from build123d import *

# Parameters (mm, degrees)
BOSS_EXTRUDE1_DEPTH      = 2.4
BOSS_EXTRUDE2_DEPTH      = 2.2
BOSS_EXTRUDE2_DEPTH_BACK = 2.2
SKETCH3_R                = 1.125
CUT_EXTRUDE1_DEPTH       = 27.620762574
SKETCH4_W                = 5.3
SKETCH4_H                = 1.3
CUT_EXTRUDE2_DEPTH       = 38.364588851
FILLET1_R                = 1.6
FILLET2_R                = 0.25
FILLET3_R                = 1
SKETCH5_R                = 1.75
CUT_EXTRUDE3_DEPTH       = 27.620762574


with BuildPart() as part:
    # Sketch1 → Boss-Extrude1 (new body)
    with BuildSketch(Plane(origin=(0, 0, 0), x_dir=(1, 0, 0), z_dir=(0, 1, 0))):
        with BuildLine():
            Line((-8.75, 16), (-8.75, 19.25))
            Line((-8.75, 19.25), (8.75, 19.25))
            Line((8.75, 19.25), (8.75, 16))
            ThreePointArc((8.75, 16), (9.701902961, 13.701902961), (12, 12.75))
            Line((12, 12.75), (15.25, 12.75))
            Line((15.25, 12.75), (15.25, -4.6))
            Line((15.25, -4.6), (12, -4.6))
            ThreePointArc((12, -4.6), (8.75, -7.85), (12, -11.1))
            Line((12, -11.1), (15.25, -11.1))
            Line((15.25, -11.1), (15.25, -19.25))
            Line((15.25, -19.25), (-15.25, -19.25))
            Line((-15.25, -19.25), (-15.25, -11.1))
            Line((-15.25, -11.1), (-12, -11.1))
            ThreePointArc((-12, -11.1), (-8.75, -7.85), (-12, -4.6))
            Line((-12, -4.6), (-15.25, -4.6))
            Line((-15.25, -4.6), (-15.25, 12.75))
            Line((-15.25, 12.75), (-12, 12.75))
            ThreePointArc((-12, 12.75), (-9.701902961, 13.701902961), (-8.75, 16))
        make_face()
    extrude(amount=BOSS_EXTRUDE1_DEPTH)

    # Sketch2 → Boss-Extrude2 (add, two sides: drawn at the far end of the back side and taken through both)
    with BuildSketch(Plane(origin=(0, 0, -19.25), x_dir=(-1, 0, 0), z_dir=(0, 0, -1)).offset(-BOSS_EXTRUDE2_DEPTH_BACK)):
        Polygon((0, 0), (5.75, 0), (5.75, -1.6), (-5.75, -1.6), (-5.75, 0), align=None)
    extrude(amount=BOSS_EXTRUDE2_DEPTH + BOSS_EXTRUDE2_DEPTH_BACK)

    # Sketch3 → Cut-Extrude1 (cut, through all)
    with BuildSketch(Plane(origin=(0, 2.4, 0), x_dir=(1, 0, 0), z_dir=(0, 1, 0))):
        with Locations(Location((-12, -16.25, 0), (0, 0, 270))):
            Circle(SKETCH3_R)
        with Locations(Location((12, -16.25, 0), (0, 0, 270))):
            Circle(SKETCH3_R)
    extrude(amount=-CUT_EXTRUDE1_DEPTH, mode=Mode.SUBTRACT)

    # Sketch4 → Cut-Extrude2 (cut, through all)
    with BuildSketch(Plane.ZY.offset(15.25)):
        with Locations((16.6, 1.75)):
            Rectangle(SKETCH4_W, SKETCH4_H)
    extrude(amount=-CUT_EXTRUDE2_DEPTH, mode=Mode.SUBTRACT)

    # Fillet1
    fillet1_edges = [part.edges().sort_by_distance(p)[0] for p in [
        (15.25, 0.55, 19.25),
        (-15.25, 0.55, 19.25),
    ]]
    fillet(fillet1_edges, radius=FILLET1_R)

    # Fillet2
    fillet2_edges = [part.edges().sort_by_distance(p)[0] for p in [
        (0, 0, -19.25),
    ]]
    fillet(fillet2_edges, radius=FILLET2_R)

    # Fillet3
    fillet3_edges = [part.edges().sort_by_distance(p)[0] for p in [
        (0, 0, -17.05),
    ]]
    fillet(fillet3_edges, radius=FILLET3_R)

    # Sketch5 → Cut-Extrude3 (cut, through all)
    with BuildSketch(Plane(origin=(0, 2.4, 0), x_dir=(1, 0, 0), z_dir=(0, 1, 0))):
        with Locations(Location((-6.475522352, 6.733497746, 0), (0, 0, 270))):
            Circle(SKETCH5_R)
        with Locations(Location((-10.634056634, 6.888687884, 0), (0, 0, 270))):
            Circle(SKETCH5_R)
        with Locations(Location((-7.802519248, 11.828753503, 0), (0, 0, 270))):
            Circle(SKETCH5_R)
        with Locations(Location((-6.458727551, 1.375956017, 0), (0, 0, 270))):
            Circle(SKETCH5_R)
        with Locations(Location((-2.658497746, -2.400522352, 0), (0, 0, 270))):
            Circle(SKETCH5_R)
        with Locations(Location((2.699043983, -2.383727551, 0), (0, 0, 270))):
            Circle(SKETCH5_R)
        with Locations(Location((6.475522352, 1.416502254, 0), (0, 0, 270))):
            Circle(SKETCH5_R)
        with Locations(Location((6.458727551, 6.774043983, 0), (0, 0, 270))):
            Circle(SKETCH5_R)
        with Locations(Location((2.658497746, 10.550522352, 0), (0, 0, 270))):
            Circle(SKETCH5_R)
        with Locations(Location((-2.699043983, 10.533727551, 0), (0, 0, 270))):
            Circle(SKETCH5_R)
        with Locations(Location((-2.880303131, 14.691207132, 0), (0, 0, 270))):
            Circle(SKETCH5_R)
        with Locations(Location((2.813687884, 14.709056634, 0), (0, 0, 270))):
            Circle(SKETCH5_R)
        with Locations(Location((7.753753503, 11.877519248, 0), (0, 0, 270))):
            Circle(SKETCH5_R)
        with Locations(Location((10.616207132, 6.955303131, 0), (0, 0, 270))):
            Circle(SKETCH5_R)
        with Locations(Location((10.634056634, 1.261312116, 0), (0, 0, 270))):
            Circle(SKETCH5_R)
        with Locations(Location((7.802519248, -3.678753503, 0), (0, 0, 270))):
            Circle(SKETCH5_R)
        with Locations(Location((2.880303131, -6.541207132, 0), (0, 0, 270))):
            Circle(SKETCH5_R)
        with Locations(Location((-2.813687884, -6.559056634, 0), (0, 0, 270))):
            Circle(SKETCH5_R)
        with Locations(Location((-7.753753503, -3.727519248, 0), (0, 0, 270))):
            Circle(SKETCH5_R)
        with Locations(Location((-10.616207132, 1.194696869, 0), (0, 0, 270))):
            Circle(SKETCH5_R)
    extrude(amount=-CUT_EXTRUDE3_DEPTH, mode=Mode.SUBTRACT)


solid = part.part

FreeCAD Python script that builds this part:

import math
import FreeCAD as App
import Part
import Sketcher
from FreeCAD import Vector


def edges_at(feature, points):
    """Names of the edges that pass closest to the given points."""
    edges = feature.Shape.Edges
    near = lambda p: min(range(len(edges)), key=lambda i: edges[i].distToShape(Part.Vertex(*p))[0])
    return sorted({f"Edge{near(p) + 1}" for p in points})

doc = App.newDocument("Part")
body = doc.addObject("PartDesign::Body", "Body")

sketch1 = body.newObject("Sketcher::SketchObject", "Sketch")
sketch1.AttachmentSupport = (doc.getObject("XZ_Plane"), [""])
sketch1.MapMode = "FlatFace"
sketch1.addGeometry(Part.LineSegment(Vector(-8.8, -19.2, 0), Vector(-8.8, -16, 0)), False)
sketch1.addGeometry(Part.ArcOfCircle(Part.Circle(Vector(-12, -16, 0), Vector(0, 0, 1), 3.2), math.radians(0), math.radians(90)), False)
sketch1.addGeometry(Part.LineSegment(Vector(-12, -12.8, 0), Vector(-15.2, -12.8, 0)), False)
sketch1.addGeometry(Part.LineSegment(Vector(-15.2, -12.8, 0), Vector(-15.2, 4.6, 0)), False)
sketch1.addGeometry(Part.LineSegment(Vector(-15.2, 4.6, 0), Vector(-12, 4.6, 0)), False)
sketch1.addGeometry(Part.ArcOfCircle(Part.Circle(Vector(-12, 7.8, 0), Vector(0, 0, 1), 3.2), math.radians(-90), math.radians(90)), False)
sketch1.addGeometry(Part.LineSegment(Vector(-12, 11.1, 0), Vector(-15.2, 11.1, 0)), False)
sketch1.addGeometry(Part.LineSegment(Vector(-15.2, 11.1, 0), Vector(-15.2, 19.2, 0)), False)
sketch1.addGeometry(Part.LineSegment(Vector(-15.2, 19.2, 0), Vector(15.2, 19.2, 0)), False)
sketch1.addGeometry(Part.LineSegment(Vector(15.2, 19.2, 0), Vector(15.2, 11.1, 0)), False)
sketch1.addGeometry(Part.LineSegment(Vector(15.2, 11.1, 0), Vector(12, 11.1, 0)), False)
sketch1.addGeometry(Part.ArcOfCircle(Part.Circle(Vector(12, 7.8, 0), Vector(0, 0, 1), 3.2), math.radians(90), math.radians(270)), False)
sketch1.addGeometry(Part.LineSegment(Vector(12, 4.6, 0), Vector(15.2, 4.6, 0)), False)
sketch1.addGeometry(Part.LineSegment(Vector(15.2, 4.6, 0), Vector(15.2, -12.8, 0)), False)
sketch1.addGeometry(Part.LineSegment(Vector(15.2, -12.8, 0), Vector(12, -12.8, 0)), False)
sketch1.addGeometry(Part.ArcOfCircle(Part.Circle(Vector(12, -16, 0), Vector(0, 0, 1), 3.2), math.radians(90), math.radians(180)), False)
sketch1.addGeometry(Part.LineSegment(Vector(8.8, -16, 0), Vector(8.8, -19.2, 0)), False)
sketch1.addGeometry(Part.LineSegment(Vector(8.8, -19.2, 0), Vector(-8.8, -19.2, 0)), False)
sketch1.addConstraint(Sketcher.Constraint("Tangent", 0, 2, 1, 1))
sketch1.addConstraint(Sketcher.Constraint("Tangent", 1, 2, 2, 1))
sketch1.addConstraint(Sketcher.Constraint("Coincident", 2, 2, 3, 1))
sketch1.addConstraint(Sketcher.Constraint("Coincident", 3, 2, 4, 1))
sketch1.addConstraint(Sketcher.Constraint("Tangent", 4, 2, 5, 1))
sketch1.addConstraint(Sketcher.Constraint("Tangent", 5, 2, 6, 1))
sketch1.addConstraint(Sketcher.Constraint("Coincident", 6, 2, 7, 1))
sketch1.addConstraint(Sketcher.Constraint("Coincident", 7, 2, 8, 1))
sketch1.addConstraint(Sketcher.Constraint("Coincident", 8, 2, 9, 1))
sketch1.addConstraint(Sketcher.Constraint("Coincident", 9, 2, 10, 1))
sketch1.addConstraint(Sketcher.Constraint("Tangent", 10, 2, 11, 1))
sketch1.addConstraint(Sketcher.Constraint("Tangent", 11, 2, 12, 1))
sketch1.addConstraint(Sketcher.Constraint("Coincident", 12, 2, 13, 1))
sketch1.addConstraint(Sketcher.Constraint("Coincident", 13, 2, 14, 1))
sketch1.addConstraint(Sketcher.Constraint("Tangent", 14, 2, 15, 1))
sketch1.addConstraint(Sketcher.Constraint("Tangent", 15, 2, 16, 1))
sketch1.addConstraint(Sketcher.Constraint("Coincident", 16, 2, 17, 1))
sketch1.addConstraint(Sketcher.Constraint("Coincident", 17, 2, 0, 1))
sketch1.addConstraint(Sketcher.Constraint("Vertical", 0))
sketch1.addConstraint(Sketcher.Constraint("Horizontal", 2))
sketch1.addConstraint(Sketcher.Constraint("Vertical", 3))
sketch1.addConstraint(Sketcher.Constraint("Horizontal", 4))
sketch1.addConstraint(Sketcher.Constraint("Horizontal", 6))
sketch1.addConstraint(Sketcher.Constraint("Vertical", 7))
sketch1.addConstraint(Sketcher.Constraint("Horizontal", 8))
sketch1.addConstraint(Sketcher.Constraint("Vertical", 9))
sketch1.addConstraint(Sketcher.Constraint("Horizontal", 10))
sketch1.addConstraint(Sketcher.Constraint("Horizontal", 12))
sketch1.addConstraint(Sketcher.Constraint("Vertical", 13))
sketch1.addConstraint(Sketcher.Constraint("Horizontal", 14))
sketch1.addConstraint(Sketcher.Constraint("Vertical", 16))
sketch1.addConstraint(Sketcher.Constraint("Horizontal", 17))
sketch1.addConstraint(Sketcher.Constraint("Equal", 1, 5))
sketch1.addConstraint(Sketcher.Constraint("Equal", 5, 11))
sketch1.addConstraint(Sketcher.Constraint("Equal", 11, 15))
sketch1.addConstraint(Sketcher.Constraint("Symmetric", 5, 3, 11, 3, -2))
sketch1.addConstraint(Sketcher.Constraint("Symmetric", 1, 3, 15, 3, -2))
sketch1.addConstraint(Sketcher.Constraint("Vertical", 1, 3, 5, 3))
sketch1.addConstraint(Sketcher.Constraint("Vertical", 3, 2, 6, 2))
sketch1.addConstraint(Sketcher.Constraint("Vertical", 9, 2, 12, 2))
sketch1.addConstraint(Sketcher.Constraint("Equal", 6, 10))
sketch1.addConstraint(Sketcher.Constraint("Equal", 14, 0))
sketch1.addConstraint(Sketcher.Constraint("Radius", 1, 3.25))
sketch1.addConstraint(Sketcher.Constraint("DistanceX", 8, 1, 8, 2, 30.5))
sketch1.addConstraint(Sketcher.Constraint("DistanceX", 17, 2, 17, 1, 17.5))
sketch1.addConstraint(Sketcher.Constraint("DistanceY", 1, 3, -1, 1, 16.0))
sketch1.addConstraint(Sketcher.Constraint("DistanceY", 3, 1, 3, 2, 17.35))
sketch1.addConstraint(Sketcher.Constraint("DistanceY", 7, 1, 7, 2, 8.15))
pad1 = body.newObject("PartDesign::Pad", "Pad")
pad1.Profile = sketch1
pad1.Length = 2.4
pad1.Reversed = True

sketch2 = body.newObject("Sketcher::SketchObject", "Sketch001")
sketch2.AttachmentSupport = (doc.getObject("XY_Plane"), [""])
sketch2.MapMode = "FlatFace"
sketch2.AttachmentOffset = App.Placement(Vector(0, 0, -19.25), App.Rotation())
sketch2.addGeometry(Part.LineSegment(Vector(-5.8, 0, 0), Vector(5.8, 0, 0)), False)
sketch2.addGeometry(Part.LineSegment(Vector(5.8, 0, 0), Vector(5.8, -1.6, 0)), False)
sketch2.addGeometry(Part.LineSegment(Vector(5.8, -1.6, 0), Vector(-5.8, -1.6, 0)), False)
sketch2.addGeometry(Part.LineSegment(Vector(-5.8, -1.6, 0), Vector(-5.8, 0, 0)), False)
sketch2.addConstraint(Sketcher.Constraint("Coincident", 0, 2, 1, 1))
sketch2.addConstraint(Sketcher.Constraint("Coincident", 1, 2, 2, 1))
sketch2.addConstraint(Sketcher.Constraint("Coincident", 2, 2, 3, 1))
sketch2.addConstraint(Sketcher.Constraint("Coincident", 3, 2, 0, 1))
sketch2.addConstraint(Sketcher.Constraint("Horizontal", 0))
sketch2.addConstraint(Sketcher.Constraint("Vertical", 1))
sketch2.addConstraint(Sketcher.Constraint("Horizontal", 2))
sketch2.addConstraint(Sketcher.Constraint("Vertical", 3))
sketch2.addConstraint(Sketcher.Constraint("Symmetric", 0, 2, 3, 2, -1, 1))
sketch2.addConstraint(Sketcher.Constraint("DistanceX", 0, 1, 0, 2, 11.5))
sketch2.addConstraint(Sketcher.Constraint("DistanceY", 1, 2, 1, 1, 1.6))
pad2 = body.newObject("PartDesign::Pad", "Pad001")
pad2.Profile = sketch2
pad2.Type = "TwoLengths"
pad2.Length = 2.2
pad2.Length2 = 2.2
pad2.Reversed = True

sketch3 = body.newObject("Sketcher::SketchObject", "Sketch002")
sketch3.AttachmentSupport = (doc.getObject("XZ_Plane"), [""])
sketch3.MapMode = "FlatFace"
sketch3.AttachmentOffset = App.Placement(Vector(0, 0, -2.4), App.Rotation())
sketch3.addGeometry(Part.Circle(Vector(-12, 16.2, 0), Vector(0, 0, 1), 1.1), False)
sketch3.addGeometry(Part.Circle(Vector(12, 16.2, 0), Vector(0, 0, 1), 1.1), False)
sketch3.addConstraint(Sketcher.Constraint("Equal", 0, 1))
sketch3.addConstraint(Sketcher.Constraint("Symmetric", 0, 3, 1, 3, -2))
sketch3.addConstraint(Sketcher.Constraint("Diameter", 0, 2.25))
sketch3.addConstraint(Sketcher.Constraint("DistanceX", 0, 3, -1, 1, 12.0))
sketch3.addConstraint(Sketcher.Constraint("DistanceY", -1, 1, 0, 3, 16.25))
pocket1 = body.newObject("PartDesign::Pocket", "Pocket")
pocket1.Profile = sketch3
pocket1.Type = "ThroughAll"
pocket1.Reversed = True

sketch4 = body.newObject("Sketcher::SketchObject", "Sketch003")
sketch4.AttachmentSupport = (doc.getObject("YZ_Plane"), [""])
sketch4.MapMode = "FlatFace"
sketch4.AttachmentOffset = App.Placement(Vector(0, 0, -15.25), App.Rotation())
sketch4.addGeometry(Part.LineSegment(Vector(2.4, 13.9, 0), Vector(1.1, 13.9, 0)), False)
sketch4.addGeometry(Part.LineSegment(Vector(1.1, 13.9, 0), Vector(1.1, 19.2, 0)), False)
sketch4.addGeometry(Part.LineSegment(Vector(1.1, 19.2, 0), Vector(2.4, 19.2, 0)), False)
sketch4.addGeometry(Part.LineSegment(Vector(2.4, 19.2, 0), Vector(2.4, 13.9, 0)), False)
sketch4.addConstraint(Sketcher.Constraint("Coincident", 0, 2, 1, 1))
sketch4.addConstraint(Sketcher.Constraint("Coincident", 1, 2, 2, 1))
sketch4.addConstraint(Sketcher.Constraint("Coincident", 2, 2, 3, 1))
sketch4.addConstraint(Sketcher.Constraint("Coincident", 3, 2, 0, 1))
sketch4.addConstraint(Sketcher.Constraint("Horizontal", 0))
sketch4.addConstraint(Sketcher.Constraint("Vertical", 1))
sketch4.addConstraint(Sketcher.Constraint("Horizontal", 2))
sketch4.addConstraint(Sketcher.Constraint("Vertical", 3))
sketch4.addConstraint(Sketcher.Constraint("DistanceX", 0, 2, 0, 1, 1.3))
sketch4.addConstraint(Sketcher.Constraint("DistanceY", 1, 1, 1, 2, 5.3))
sketch4.addConstraint(Sketcher.Constraint("DistanceX", -1, 1, 0, 2, 1.1))
sketch4.addConstraint(Sketcher.Constraint("DistanceY", -1, 1, 0, 2, 13.95))
pocket2 = body.newObject("PartDesign::Pocket", "Pocket001")
pocket2.Profile = sketch4
pocket2.Type = "ThroughAll"
pocket2.Reversed = True
doc.recompute()

fillet = body.newObject("PartDesign::Fillet", "Fillet")
fillet.Base = (pocket2, edges_at(pocket2, [(15.25, 0.55, 19.25), (-15.25, 0.55, 19.25)]))
fillet.Radius = 1.6
doc.recompute()

fillet2 = body.newObject("PartDesign::Fillet", "Fillet001")
fillet2.Base = (fillet, edges_at(fillet, [(0, 0, -19.25)]))
fillet2.Radius = 0.25
doc.recompute()

fillet3 = body.newObject("PartDesign::Fillet", "Fillet002")
fillet3.Base = (fillet2, edges_at(fillet2, [(0, 0, -17.05)]))
fillet3.Radius = 1

sketch5 = body.newObject("Sketcher::SketchObject", "Sketch004")
sketch5.AttachmentSupport = (doc.getObject("XZ_Plane"), [""])
sketch5.MapMode = "FlatFace"
sketch5.AttachmentOffset = App.Placement(Vector(0, 0, -2.4), App.Rotation())
sketch5.addGeometry(Part.Circle(Vector(-6.5, -6.7, 0), Vector(0, 0, 1), 1.8), False)
sketch5.addGeometry(Part.Circle(Vector(-10.6, -6.9, 0), Vector(0, 0, 1), 1.8), False)
sketch5.addGeometry(Part.Circle(Vector(-7.8, -11.8, 0), Vector(0, 0, 1), 1.8), False)
sketch5.addGeometry(Part.Circle(Vector(-6.5, -1.4, 0), Vector(0, 0, 1), 1.8), False)
sketch5.addGeometry(Part.Circle(Vector(-2.7, 2.4, 0), Vector(0, 0, 1), 1.8), False)
sketch5.addGeometry(Part.Circle(Vector(2.7, 2.4, 0), Vector(0, 0, 1), 1.8), False)
sketch5.addGeometry(Part.Circle(Vector(6.5, -1.4, 0), Vector(0, 0, 1), 1.8), False)
sketch5.addGeometry(Part.Circle(Vector(6.5, -6.8, 0), Vector(0, 0, 1), 1.8), False)
sketch5.addGeometry(Part.Circle(Vector(2.7, -10.6, 0), Vector(0, 0, 1), 1.8), False)
sketch5.addGeometry(Part.Circle(Vector(-2.7, -10.5, 0), Vector(0, 0, 1), 1.8), False)
sketch5.addGeometry(Part.Circle(Vector(-2.9, -14.7, 0), Vector(0, 0, 1), 1.8), False)
sketch5.addGeometry(Part.Circle(Vector(2.8, -14.7, 0), Vector(0, 0, 1), 1.8), False)
sketch5.addGeometry(Part.Circle(Vector(7.8, -11.9, 0), Vector(0, 0, 1), 1.8), False)
sketch5.addGeometry(Part.Circle(Vector(10.6, -7, 0), Vector(0, 0, 1), 1.8), False)
sketch5.addGeometry(Part.Circle(Vector(10.6, -1.3, 0), Vector(0, 0, 1), 1.8), False)
sketch5.addGeometry(Part.Circle(Vector(7.8, 3.7, 0), Vector(0, 0, 1), 1.8), False)
sketch5.addGeometry(Part.Circle(Vector(2.9, 6.5, 0), Vector(0, 0, 1), 1.8), False)
sketch5.addGeometry(Part.Circle(Vector(-2.8, 6.6, 0), Vector(0, 0, 1), 1.8), False)
sketch5.addGeometry(Part.Circle(Vector(-7.8, 3.7, 0), Vector(0, 0, 1), 1.8), False)
sketch5.addGeometry(Part.Circle(Vector(-10.6, -1.2, 0), Vector(0, 0, 1), 1.8), False)
sketch5.addConstraint(Sketcher.Constraint("Equal", 0, 1))
sketch5.addConstraint(Sketcher.Constraint("Equal", 1, 2))
sketch5.addConstraint(Sketcher.Constraint("Equal", 2, 3))
sketch5.addConstraint(Sketcher.Constraint("Equal", 3, 4))
sketch5.addConstraint(Sketcher.Constraint("Equal", 4, 5))
sketch5.addConstraint(Sketcher.Constraint("Equal", 5, 6))
sketch5.addConstraint(Sketcher.Constraint("Equal", 6, 7))
sketch5.addConstraint(Sketcher.Constraint("Equal", 7, 8))
sketch5.addConstraint(Sketcher.Constraint("Equal", 8, 9))
sketch5.addConstraint(Sketcher.Constraint("Equal", 9, 10))
sketch5.addConstraint(Sketcher.Constraint("Equal", 10, 11))
sketch5.addConstraint(Sketcher.Constraint("Equal", 11, 12))
sketch5.addConstraint(Sketcher.Constraint("Equal", 12, 13))
sketch5.addConstraint(Sketcher.Constraint("Equal", 13, 14))
sketch5.addConstraint(Sketcher.Constraint("Equal", 14, 15))
sketch5.addConstraint(Sketcher.Constraint("Equal", 15, 16))
sketch5.addConstraint(Sketcher.Constraint("Equal", 16, 17))
sketch5.addConstraint(Sketcher.Constraint("Equal", 17, 18))
sketch5.addConstraint(Sketcher.Constraint("Equal", 18, 19))
sketch5.addConstraint(Sketcher.Constraint("Diameter", 0, 3.5))
sketch5.addConstraint(Sketcher.Constraint("DistanceX", 1, 3, 5, 3, 13.333101))
sketch5.addConstraint(Sketcher.Constraint("DistanceX", 10, 3, 8, 3, 5.538801))
sketch5.addConstraint(Sketcher.Constraint("DistanceY", 13, 3, 6, 3, 5.538801))
sketch5.addConstraint(Sketcher.Constraint("DistanceX", 4, 3, 16, 3, 5.538801))
sketch5.addConstraint(Sketcher.Constraint("DistanceY", 0, 3, 19, 3, 5.538801))
sketch5.addConstraint(Sketcher.Constraint("DistanceX", 2, 3, -1, 1, 7.802519))
sketch5.addConstraint(Sketcher.Constraint("DistanceY", 12, 3, -1, 1, 11.877519))
sketch5.addConstraint(Sketcher.Constraint("DistanceX", -1, 1, 15, 3, 7.802519))
sketch5.addConstraint(Sketcher.Constraint("DistanceY", -1, 1, 18, 3, 3.727519))
sketch5.addConstraint(Sketcher.Constraint("DistanceY", 1, 3, 0, 3, 0.15519))
sketch5.addConstraint(Sketcher.Constraint("DistanceY", 0, 3, 3, 3, 5.357542))
sketch5.addConstraint(Sketcher.Constraint("DistanceX", 1, 3, 3, 3, 4.175329))
sketch5.addConstraint(Sketcher.Constraint("DistanceX", 2, 3, 3, 3, 1.343792))
sketch5.addConstraint(Sketcher.Constraint("DistanceX", 3, 3, 4, 3, 3.80023))
sketch5.addConstraint(Sketcher.Constraint("DistanceY", 3, 3, 4, 3, 3.776478))
sketch5.addConstraint(Sketcher.Constraint("DistanceY", 2, 3, 5, 3, 14.212481))
sketch5.addConstraint(Sketcher.Constraint("DistanceX", 5, 3, 6, 3, 3.776478))
sketch5.addConstraint(Sketcher.Constraint("DistanceY", 6, 3, 5, 3, 3.80023))
sketch5.addConstraint(Sketcher.Constraint("DistanceY", 7, 3, 6, 3, 5.357542))
sketch5.addConstraint(Sketcher.Constraint("DistanceX", 0, 3, 7, 3, 12.93425))
sketch5.addConstraint(Sketcher.Constraint("DistanceX", 8, 3, 7, 3, 3.80023))
sketch5.addConstraint(Sketcher.Constraint("DistanceY", 8, 3, 7, 3, 3.776478))
sketch5.addConstraint(Sketcher.Constraint("DistanceX", 0, 3, 9, 3, 3.776478))
sketch5.addConstraint(Sketcher.Constraint("DistanceY", 9, 3, 0, 3, 3.80023))
sketch5.addConstraint(Sketcher.Constraint("DistanceY", 10, 3, 9, 3, 4.15748))
sketch5.addConstraint(Sketcher.Constraint("DistanceX", 8, 3, 11, 3, 0.15519))
sketch5.addConstraint(Sketcher.Constraint("DistanceY", 11, 3, 10, 3, 0.01785))
sketch5.addConstraint(Sketcher.Constraint("DistanceY", 12, 3, 9, 3, 1.343792))
sketch5.addConstraint(Sketcher.Constraint("DistanceX", 6, 3, 12, 3, 1.278231))
sketch5.addConstraint(Sketcher.Constraint("DistanceX", 7, 3, 13, 3, 4.15748))
sketch5.addConstraint(Sketcher.Constraint("DistanceY", 6, 3, 14, 3, 0.15519))
sketch5.addConstraint(Sketcher.Constraint("DistanceX", 13, 3, 14, 3, 0.01785))
sketch5.addConstraint(Sketcher.Constraint("DistanceX", 7, 3, 15, 3, 1.343792))
sketch5.addConstraint(Sketcher.Constraint("DistanceY", 4, 3, 15, 3, 1.278231))
sketch5.addConstraint(Sketcher.Constraint("DistanceY", 5, 3, 16, 3, 4.15748))
sketch5.addConstraint(Sketcher.Constraint("DistanceX", 17, 3, 4, 3, 0.15519))
sketch5.addConstraint(Sketcher.Constraint("DistanceY", 16, 3, 17, 3, 0.01785))
sketch5.addConstraint(Sketcher.Constraint("DistanceY", 5, 3, 18, 3, 1.343792))
sketch5.addConstraint(Sketcher.Constraint("DistanceX", 18, 3, 0, 3, 1.278231))
sketch5.addConstraint(Sketcher.Constraint("DistanceX", 19, 3, 3, 3, 4.15748))
pocket3 = body.newObject("PartDesign::Pocket", "Pocket002")
pocket3.Profile = sketch5
pocket3.Type = "ThroughAll"
pocket3.Reversed = True

doc.recompute()
